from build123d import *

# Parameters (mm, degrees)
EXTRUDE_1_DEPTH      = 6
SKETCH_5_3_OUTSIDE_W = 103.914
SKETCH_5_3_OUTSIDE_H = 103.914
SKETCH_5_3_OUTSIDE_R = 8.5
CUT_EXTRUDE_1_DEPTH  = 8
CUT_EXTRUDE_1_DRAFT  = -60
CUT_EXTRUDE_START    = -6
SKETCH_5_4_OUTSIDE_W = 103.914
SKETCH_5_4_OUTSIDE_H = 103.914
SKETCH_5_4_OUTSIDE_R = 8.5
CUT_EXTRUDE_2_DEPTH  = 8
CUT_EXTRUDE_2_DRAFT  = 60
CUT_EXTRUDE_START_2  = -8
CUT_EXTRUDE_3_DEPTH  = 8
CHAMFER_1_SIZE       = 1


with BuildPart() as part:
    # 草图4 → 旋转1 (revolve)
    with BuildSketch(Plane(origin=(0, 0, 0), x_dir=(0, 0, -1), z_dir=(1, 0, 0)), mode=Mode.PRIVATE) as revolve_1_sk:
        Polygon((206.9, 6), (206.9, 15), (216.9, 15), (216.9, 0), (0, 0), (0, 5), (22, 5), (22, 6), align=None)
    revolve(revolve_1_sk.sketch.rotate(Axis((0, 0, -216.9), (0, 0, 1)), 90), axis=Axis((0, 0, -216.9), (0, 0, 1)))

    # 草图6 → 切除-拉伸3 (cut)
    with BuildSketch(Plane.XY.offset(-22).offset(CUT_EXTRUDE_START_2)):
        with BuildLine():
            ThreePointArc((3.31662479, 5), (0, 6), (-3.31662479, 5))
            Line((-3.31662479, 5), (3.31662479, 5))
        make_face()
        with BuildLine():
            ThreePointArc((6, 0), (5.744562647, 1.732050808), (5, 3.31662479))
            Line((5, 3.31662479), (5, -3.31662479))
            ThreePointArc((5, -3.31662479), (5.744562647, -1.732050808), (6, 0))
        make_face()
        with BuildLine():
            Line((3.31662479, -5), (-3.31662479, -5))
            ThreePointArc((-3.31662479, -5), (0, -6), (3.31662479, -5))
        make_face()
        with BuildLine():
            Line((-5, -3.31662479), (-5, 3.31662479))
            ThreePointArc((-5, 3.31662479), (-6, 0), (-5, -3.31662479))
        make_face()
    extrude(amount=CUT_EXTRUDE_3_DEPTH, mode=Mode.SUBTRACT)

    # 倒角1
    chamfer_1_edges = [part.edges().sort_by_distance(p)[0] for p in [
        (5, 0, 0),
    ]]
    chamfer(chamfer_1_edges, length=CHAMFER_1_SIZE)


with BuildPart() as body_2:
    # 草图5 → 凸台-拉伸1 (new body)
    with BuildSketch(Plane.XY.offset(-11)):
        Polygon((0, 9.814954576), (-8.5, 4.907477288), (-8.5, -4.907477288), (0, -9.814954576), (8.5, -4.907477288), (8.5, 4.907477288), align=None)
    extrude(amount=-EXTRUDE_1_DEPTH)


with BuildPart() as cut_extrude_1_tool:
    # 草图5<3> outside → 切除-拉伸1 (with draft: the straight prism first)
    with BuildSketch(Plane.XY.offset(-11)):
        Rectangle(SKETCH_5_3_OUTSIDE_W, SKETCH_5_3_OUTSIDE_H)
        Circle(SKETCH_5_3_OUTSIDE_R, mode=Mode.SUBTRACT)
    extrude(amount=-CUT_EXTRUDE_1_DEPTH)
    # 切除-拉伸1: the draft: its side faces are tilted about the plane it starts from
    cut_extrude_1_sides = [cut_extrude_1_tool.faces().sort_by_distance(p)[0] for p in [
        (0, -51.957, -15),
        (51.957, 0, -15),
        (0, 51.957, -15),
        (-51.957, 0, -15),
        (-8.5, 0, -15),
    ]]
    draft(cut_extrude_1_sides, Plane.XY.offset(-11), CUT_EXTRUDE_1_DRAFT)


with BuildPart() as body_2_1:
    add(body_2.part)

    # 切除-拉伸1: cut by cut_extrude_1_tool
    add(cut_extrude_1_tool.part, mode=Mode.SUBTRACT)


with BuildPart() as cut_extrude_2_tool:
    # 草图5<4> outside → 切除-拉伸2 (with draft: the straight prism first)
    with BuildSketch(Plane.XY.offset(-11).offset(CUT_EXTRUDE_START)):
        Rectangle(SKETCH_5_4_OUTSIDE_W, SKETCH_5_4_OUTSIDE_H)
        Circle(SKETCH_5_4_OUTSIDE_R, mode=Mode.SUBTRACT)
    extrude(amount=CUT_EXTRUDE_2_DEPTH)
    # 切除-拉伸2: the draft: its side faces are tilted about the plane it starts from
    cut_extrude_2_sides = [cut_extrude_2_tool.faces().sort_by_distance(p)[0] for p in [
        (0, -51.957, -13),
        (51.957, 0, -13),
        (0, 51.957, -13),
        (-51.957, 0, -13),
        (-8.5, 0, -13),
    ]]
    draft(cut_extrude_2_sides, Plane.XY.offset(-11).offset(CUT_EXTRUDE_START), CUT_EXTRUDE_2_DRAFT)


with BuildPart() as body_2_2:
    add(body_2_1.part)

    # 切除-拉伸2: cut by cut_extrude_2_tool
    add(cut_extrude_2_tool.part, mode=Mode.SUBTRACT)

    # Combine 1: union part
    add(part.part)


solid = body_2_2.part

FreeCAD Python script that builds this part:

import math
import FreeCAD as App
import Part
import Sketcher
Q = App.Units.Quantity


def edges_at(feature, points):
    """Names of the edges that pass closest to the given points."""
    edges = feature.Shape.Edges
    near = lambda p: min(range(len(edges)), key=lambda i: edges[i].distToShape(Part.Vertex(*p))[0])
    return sorted({f"Edge{near(p) + 1}" for p in points})


def faces_at(feature, points):
    """Names of the faces that lie closest to the given points."""
    faces = feature.Shape.Faces
    near = lambda p: min(range(len(faces)), key=lambda i: faces[i].distToShape(Part.Vertex(*p))[0])
    return sorted({f"Face{near(p) + 1}" for p in points})


def add_polygon(sketch, points):
    """Adds a closed chain of lines whose ends are joined by coincident constraints."""
    first, n = sketch.GeometryCount, len(points)
    for a, b in zip(points, points[1:] + points[:1]):
        sketch.addGeometry(Part.LineSegment(App.Vector(*a, 0), App.Vector(*b, 0)), False)
    for i in range(n):
        sketch.addConstraint(Sketcher.Constraint("Coincident", first + i, 2, first + (i + 1) % n, 1))

doc = App.newDocument("Part")
body = doc.addObject("PartDesign::Body", "Body")

sketch1 = body.newObject("Sketcher::SketchObject", "Sketch")
sketch1.AttachmentSupport = (doc.getObject("YZ_Plane"), [""])
sketch1.MapMode = "FlatFace"
add_polygon(sketch1, [(15, -206.9), (6, -206.9), (6, -22), (5, -22), (5, 0), (0, 0), (0, -216.9), (15, -216.9)])
sketch1.addConstraint([
    Sketcher.Constraint("Horizontal", 0),
    Sketcher.Constraint("Vertical", 1),
    Sketcher.Constraint("Horizontal", 2),
    Sketcher.Constraint("Vertical", 3),
    Sketcher.Constraint("Horizontal", 4),
    Sketcher.Constraint("Vertical", 5),
    Sketcher.Constraint("Horizontal", 6),
    Sketcher.Constraint("Vertical", 7),
    Sketcher.Constraint("Coincident", 4, 2, -1, 1),
    Sketcher.Constraint("DistanceX", 0, 2, 0, 1, Q("9 mm")),
    Sketcher.Constraint("DistanceX", 2, 2, 2, 1, Q("1 mm")),
    Sketcher.Constraint("DistanceX", 4, 2, 4, 1, Q("5 mm")),
    Sketcher.Constraint("DistanceY", 3, 1, 3, 2, Q("22 mm")),
    Sketcher.Constraint("DistanceY", 7, 1, 7, 2, Q("10 mm")),
    Sketcher.Constraint("DistanceY", 1, 1, 1, 2, Q("184.9 mm")),
])
revolution = body.newObject("PartDesign::Revolution", "Revolution")
revolution.Profile = sketch1
revolution.ReferenceAxis = (sketch1, ["V_Axis"])
revolution.Angle = 360

sketch2 = body.newObject("Sketcher::SketchObject", "Sketch001")
sketch2.AttachmentSupport = (doc.getObject("XY_Plane"), [""])
sketch2.MapMode = "FlatFace"
sketch2.AttachmentOffset = App.Placement(App.Vector(0, 0, -30), App.Rotation())
sketch2.addGeometry([
    Part.ArcOfCircle(Part.Circle(App.Vector(0, 0, 0), App.Vector(0, 0, 1), 6), math.radians(56), math.radians(124)),
    Part.LineSegment(App.Vector(-3.3, 5, 0), App.Vector(3.3, 5, 0)),
    Part.ArcOfCircle(Part.Circle(App.Vector(0, 0, 0), App.Vector(0, 0, 1), 6), math.radians(0), math.radians(34)),
    Part.LineSegment(App.Vector(5, 3.3, 0), App.Vector(5, -3.3, 0)),
    Part.ArcOfCircle(Part.Circle(App.Vector(0, 0, 0), App.Vector(0, 0, 1), 6), math.radians(-34), math.radians(0)),
    Part.LineSegment(App.Vector(3.3, -5, 0), App.Vector(-3.3, -5, 0)),
    Part.ArcOfCircle(Part.Circle(App.Vector(0, 0, 0), App.Vector(0, 0, 1), 6), math.radians(-124), math.radians(-56)),
    Part.LineSegment(App.Vector(-5, -3.3, 0), App.Vector(-5, 3.3, 0)),
    Part.ArcOfCircle(Part.Circle(App.Vector(0, 0, 0), App.Vector(0, 0, 1), 6), math.radians(146), math.radians(214)),
], False)
sketch2.addConstraint([
    Sketcher.Constraint("Coincident", 0, 1, 1, 2),
    Sketcher.Constraint("Coincident", 1, 1, 0, 2),
    Sketcher.Constraint("Coincident", 2, 2, 3, 1),
    Sketcher.Constraint("Coincident", 3, 2, 4, 1),
    Sketcher.Constraint("Tangent", 4, 2, 2, 1),
    Sketcher.Constraint("Coincident", 5, 1, 6, 2),
    Sketcher.Constraint("Coincident", 6, 1, 5, 2),
    Sketcher.Constraint("Coincident", 7, 1, 8, 2),
    Sketcher.Constraint("Coincident", 8, 1, 7, 2),
    Sketcher.Constraint("Horizontal", 1),
    Sketcher.Constraint("Vertical", 3),
    Sketcher.Constraint("Horizontal", 5),
    Sketcher.Constraint("Vertical", 7),
    Sketcher.Constraint("Coincident", 0, 3, -1, 1),
    Sketcher.Constraint("Coincident", 2, 3, -1, 1),
    Sketcher.Constraint("Coincident", 6, 3, -1, 1),
    Sketcher.Constraint("Coincident", 8, 3, -1, 1),
    Sketcher.Constraint("Equal", 0, 2),
    Sketcher.Constraint("Equal", 2, 4),
    Sketcher.Constraint("Equal", 4, 6),
    Sketcher.Constraint("Equal", 6, 8),
    Sketcher.Constraint("PointOnObject", 4, 2, -1),
    Sketcher.Constraint("Horizontal", 3, 2, 7, 1),
    Sketcher.Constraint("Vertical", 0, 1, 5, 1),
    Sketcher.Constraint("Equal", 5, 3),
    Sketcher.Constraint("Radius", 0, Q("6 mm")),
    Sketcher.Constraint("DistanceY", -1, 1, 0, 1, Q("5 mm")),
])
pocket1 = body.newObject("PartDesign::Pocket", "Pocket")
pocket1.Profile = sketch2
pocket1.Length = 8
pocket1.Reversed = True
doc.recompute()

chamfer = body.newObject("PartDesign::Chamfer", "Chamfer")
chamfer.Base = (pocket1, edges_at(pocket1, [(5, 0, 0)]))
chamfer.Size = 1
body2 = doc.addObject("PartDesign::Body", "Body001")

sketch3 = body2.newObject("Sketcher::SketchObject", "Sketch002")
sketch3.AttachmentSupport = (doc.getObject("XY_Plane001"), [""])
sketch3.MapMode = "FlatFace"
sketch3.AttachmentOffset = App.Placement(App.Vector(0, 0, -11), App.Rotation())
add_polygon(sketch3, [(0, 10), (-8, 5), (-8, -5), (0, -10), (8, -5), (8, 5)])
sketch3.addConstraint([
    Sketcher.Constraint("Vertical", 1),
    Sketcher.Constraint("Vertical", 4),
    Sketcher.Constraint("Symmetric", 0, 2, 3, 2, -1, 1),
    Sketcher.Constraint("Symmetric", 2, 2, 5, 2, -1, 1),
    Sketcher.Constraint("PointOnObject", 2, 2, -2),
    Sketcher.Constraint("Parallel", 2, 5),
    Sketcher.Constraint("Horizontal", 1, 2, 3, 2),
    Sketcher.Constraint("Angle", 0, Q("-150 deg")),
    Sketcher.Constraint("DistanceX", 1, 2, 3, 2, Q("17 mm")),
    Sketcher.Constraint("DistanceY", 1, 2, 1, 1, Q("9.814955 mm")),
])
pad1 = body2.newObject("PartDesign::Pad", "Pad")
pad1.Profile = sketch3
pad1.Length = 6
pad1.Reversed = True
body3 = doc.addObject("PartDesign::Body", "Body002")

sketch4 = body3.newObject("Sketcher::SketchObject", "Sketch003")
sketch4.AttachmentSupport = (doc.getObject("XY_Plane002"), [""])
sketch4.MapMode = "FlatFace"
sketch4.AttachmentOffset = App.Placement(App.Vector(0, 0, -11), App.Rotation())
add_polygon(sketch4, [(-52, 52), (-52, -52), (52, -52), (52, 52)])
sketch4.addGeometry(Part.Circle(App.Vector(0, 0, 0), App.Vector(0, 0, 1), 8), False)
sketch4.addConstraint([
    Sketcher.Constraint("Vertical", 0),
    Sketcher.Constraint("Horizontal", 1),
    Sketcher.Constraint("Vertical", 2),
    Sketcher.Constraint("Horizontal", 3),
    Sketcher.Constraint("Coincident", 4, 3, -1, 1),
    Sketcher.Constraint("Symmetric", 0, 2, 2, 2, -1, 1),
    Sketcher.Constraint("Equal", 3, 0),
    Sketcher.Constraint("Diameter", 4, Q("17 mm")),
    Sketcher.Constraint("DistanceX", 1, 1, 1, 2, Q("103.914 mm")),
])
pad2 = body3.newObject("PartDesign::Pad", "Pad001")
pad2.Profile = sketch4
pad2.Length = 8
pad2.Reversed = True
doc.recompute()

datumplane = body3.newObject("PartDesign::Plane", "DatumPlane")
datumplane.AttachmentSupport = (doc.getObject("XY_Plane002"), [""])
datumplane.MapMode = "FlatFace"
datumplane.AttachmentOffset = App.Placement(App.Vector(0, 0, -11), App.Rotation())
draft = body3.newObject("PartDesign::Draft", "Draft")
draft.Base = (pad2, faces_at(pad2, [
    (0, -51.957, -15),
    (51.957, 0, -15),
    (0, 51.957, -15),
    (-51.957, 0, -15),
    (-8.5, 0, -15),
]))
draft.NeutralPlane = (datumplane, [""])
draft.Angle = 60
draft.Reversed = True
doc.recompute()

boolean = body2.newObject("PartDesign::Boolean", "Boolean")
boolean.Type = "Cut"
boolean.addObjects([body3])
body4 = doc.addObject("PartDesign::Body", "Body003")

sketch5 = body4.newObject("Sketcher::SketchObject", "Sketch004")
sketch5.AttachmentSupport = (doc.getObject("XY_Plane003"), [""])
sketch5.MapMode = "FlatFace"
sketch5.AttachmentOffset = App.Placement(App.Vector(0, 0, -17), App.Rotation())
add_polygon(sketch5, [(-52, 52), (-52, -52), (52, -52), (52, 52)])
sketch5.addGeometry(Part.Circle(App.Vector(0, 0, 0), App.Vector(0, 0, 1), 8), False)
sketch5.addConstraint([
    Sketcher.Constraint("Vertical", 0),
    Sketcher.Constraint("Horizontal", 1),
    Sketcher.Constraint("Vertical", 2),
    Sketcher.Constraint("Horizontal", 3),
    Sketcher.Constraint("Coincident", 4, 3, -1, 1),
    Sketcher.Constraint("Symmetric", 0, 2, 2, 2, -1, 1),
    Sketcher.Constraint("Equal", 3, 0),
    Sketcher.Constraint("Diameter", 4, Q("17 mm")),
    Sketcher.Constraint("DistanceX", 1, 1, 1, 2, Q("103.914 mm")),
])
pad3 = body4.newObject("PartDesign::Pad", "Pad002")
pad3.Profile = sketch5
pad3.Length = 8
doc.recompute()

datumplane2 = body4.newObject("PartDesign::Plane", "DatumPlane001")
datumplane2.AttachmentSupport = (doc.getObject("XY_Plane003"), [""])
datumplane2.MapMode = "FlatFace"
datumplane2.AttachmentOffset = App.Placement(App.Vector(0, 0, -17), App.Rotation())
draft2 = body4.newObject("PartDesign::Draft", "Draft001")
draft2.Base = (pad3, faces_at(pad3, [
    (0, -51.957, -13),
    (51.957, 0, -13),
    (0, 51.957, -13),
    (-51.957, 0, -13),
    (-8.5, 0, -13),
]))
draft2.NeutralPlane = (datumplane2, [""])
draft2.Angle = 60
draft2.Reversed = False
doc.recompute()

boolean2 = body2.newObject("PartDesign::Boolean", "Boolean001")
boolean2.Type = "Cut"
boolean2.addObjects([body4])
doc.recompute()

boolean3 = body2.newObject("PartDesign::Boolean", "Boolean002")
boolean3.Type = "Fuse"
boolean3.addObjects([body])

doc.recompute()
